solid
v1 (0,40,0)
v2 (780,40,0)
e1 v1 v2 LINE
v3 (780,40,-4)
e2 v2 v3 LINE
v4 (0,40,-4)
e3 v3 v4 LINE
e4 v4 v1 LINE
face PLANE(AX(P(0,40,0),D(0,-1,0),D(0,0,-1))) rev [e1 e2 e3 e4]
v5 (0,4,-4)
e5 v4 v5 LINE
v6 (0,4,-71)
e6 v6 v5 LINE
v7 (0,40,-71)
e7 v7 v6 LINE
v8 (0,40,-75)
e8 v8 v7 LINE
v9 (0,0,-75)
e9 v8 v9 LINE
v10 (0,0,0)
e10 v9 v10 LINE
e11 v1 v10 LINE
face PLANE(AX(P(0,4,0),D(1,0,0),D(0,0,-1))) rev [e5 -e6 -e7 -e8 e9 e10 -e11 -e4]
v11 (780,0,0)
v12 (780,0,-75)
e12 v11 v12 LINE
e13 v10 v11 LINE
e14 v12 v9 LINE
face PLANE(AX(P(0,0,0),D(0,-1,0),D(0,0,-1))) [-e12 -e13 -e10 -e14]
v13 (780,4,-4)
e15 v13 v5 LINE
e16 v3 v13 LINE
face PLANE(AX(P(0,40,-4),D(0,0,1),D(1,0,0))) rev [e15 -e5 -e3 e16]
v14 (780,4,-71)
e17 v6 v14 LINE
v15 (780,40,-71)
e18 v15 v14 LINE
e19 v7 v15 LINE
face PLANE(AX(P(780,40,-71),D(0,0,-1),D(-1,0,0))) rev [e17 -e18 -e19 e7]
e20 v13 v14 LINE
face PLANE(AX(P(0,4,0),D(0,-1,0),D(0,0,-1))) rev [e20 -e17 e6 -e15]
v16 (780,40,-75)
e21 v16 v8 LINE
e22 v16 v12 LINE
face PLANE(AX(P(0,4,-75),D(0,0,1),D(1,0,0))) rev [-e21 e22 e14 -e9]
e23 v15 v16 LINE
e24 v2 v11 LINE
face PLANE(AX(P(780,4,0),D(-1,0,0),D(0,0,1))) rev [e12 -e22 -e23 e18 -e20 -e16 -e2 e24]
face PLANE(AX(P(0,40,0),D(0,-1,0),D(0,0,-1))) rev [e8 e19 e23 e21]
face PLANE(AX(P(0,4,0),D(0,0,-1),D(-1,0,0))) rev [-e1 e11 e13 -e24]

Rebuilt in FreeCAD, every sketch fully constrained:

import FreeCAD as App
import Part
import Sketcher

V = App.Vector
Q = App.Units.Quantity

doc = App.newDocument("Part")
body = doc.addObject("PartDesign::Body", "Body")

sketch1 = body.newObject("Sketcher::SketchObject", "Sketch")
sketch1.AttachmentSupport = (doc.getObject("XZ_Plane"), [""])
sketch1.MapMode = "FlatFace"
sketch1.addGeometry([
    Part.LineSegment(V(0, -75, 0), V(0, 0, 0)),
    Part.LineSegment(V(0, 0, 0), V(780, 0, 0)),
    Part.LineSegment(V(780, 0, 0), V(780, -75, 0)),
    Part.LineSegment(V(780, -75, 0), V(0, -75, 0)),
], False)
sketch1.addConstraint([
    Sketcher.Constraint("Coincident", 0, 2, 1, 1),
    Sketcher.Constraint("Coincident", 1, 2, 2, 1),
    Sketcher.Constraint("Coincident", 2, 2, 3, 1),
    Sketcher.Constraint("Coincident", 3, 2, 0, 1),
    Sketcher.Constraint("Vertical", 0),
    Sketcher.Constraint("Horizontal", 1),
    Sketcher.Constraint("Vertical", 2),
    Sketcher.Constraint("Horizontal", 3),
    Sketcher.Constraint("Coincident", 0, 2, -1, 1),
    Sketcher.Constraint("DistanceX", 1, 1, 1, 2, Q("780 mm")),
    Sketcher.Constraint("DistanceY", 0, 1, 0, 2, Q("75 mm")),
])
pad1 = body.newObject("PartDesign::Pad", "Pad")
pad1.Profile = sketch1
pad1.Length = 4
pad1.Reversed = True

sketch2 = body.newObject("Sketcher::SketchObject", "Sketch001")
sketch2.AttachmentSupport = (doc.getObject("XZ_Plane"), [""])
sketch2.MapMode = "FlatFace"
sketch2.AttachmentOffset = App.Placement(V(0, 0, -4), App.Rotation())
sketch2.addGeometry([
    Part.LineSegment(V(0, -4, 0), V(0, 0, 0)),
    Part.LineSegment(V(0, 0, 0), V(780, 0, 0)),
    Part.LineSegment(V(780, 0, 0), V(780, -4, 0)),
    Part.LineSegment(V(780, -4, 0), V(0, -4, 0)),
    Part.LineSegment(V(0, -75, 0), V(0, -71, 0)),
    Part.LineSegment(V(0, -71, 0), V(780, -71, 0)),
    Part.LineSegment(V(780, -71, 0), V(780, -75, 0)),
    Part.LineSegment(V(780, -75, 0), V(0, -75, 0)),
], False)
sketch2.addConstraint([
    Sketcher.Constraint("Coincident", 0, 2, 1, 1),
    Sketcher.Constraint("Coincident", 1, 2, 2, 1),
    Sketcher.Constraint("Coincident", 2, 2, 3, 1),
    Sketcher.Constraint("Coincident", 3, 2, 0, 1),
    Sketcher.Constraint("Coincident", 4, 2, 5, 1),
    Sketcher.Constraint("Coincident", 5, 2, 6, 1),
    Sketcher.Constraint("Coincident", 6, 2, 7, 1),
    Sketcher.Constraint("Coincident", 7, 2, 4, 1),
    Sketcher.Constraint("Vertical", 0),
    Sketcher.Constraint("Horizontal", 1),
    Sketcher.Constraint("Vertical", 2),
    Sketcher.Constraint("Horizontal", 3),
    Sketcher.Constraint("Vertical", 4),
    Sketcher.Constraint("Horizontal", 5),
    Sketcher.Constraint("Vertical", 6),
    Sketcher.Constraint("Horizontal", 7),
    Sketcher.Constraint("Coincident", 0, 2, -1, 1),
    Sketcher.Constraint("PointOnObject", 4, 2, -2),
    Sketcher.Constraint("Vertical", 2, 2, 5, 2),
    Sketcher.Constraint("Equal", 2, 4),
    Sketcher.Constraint("DistanceX", 1, 1, 1, 2, Q("780 mm")),
    Sketcher.Constraint("DistanceY", 0, 1, 0, 2, Q("4 mm")),
    Sketcher.Constraint("DistanceY", 4, 2, -1, 1, Q("71 mm")),
])
pad2 = body.newObject("PartDesign::Pad", "Pad001")
pad2.Profile = sketch2
pad2.Length = 36
pad2.Reversed = True

doc.recompute()
